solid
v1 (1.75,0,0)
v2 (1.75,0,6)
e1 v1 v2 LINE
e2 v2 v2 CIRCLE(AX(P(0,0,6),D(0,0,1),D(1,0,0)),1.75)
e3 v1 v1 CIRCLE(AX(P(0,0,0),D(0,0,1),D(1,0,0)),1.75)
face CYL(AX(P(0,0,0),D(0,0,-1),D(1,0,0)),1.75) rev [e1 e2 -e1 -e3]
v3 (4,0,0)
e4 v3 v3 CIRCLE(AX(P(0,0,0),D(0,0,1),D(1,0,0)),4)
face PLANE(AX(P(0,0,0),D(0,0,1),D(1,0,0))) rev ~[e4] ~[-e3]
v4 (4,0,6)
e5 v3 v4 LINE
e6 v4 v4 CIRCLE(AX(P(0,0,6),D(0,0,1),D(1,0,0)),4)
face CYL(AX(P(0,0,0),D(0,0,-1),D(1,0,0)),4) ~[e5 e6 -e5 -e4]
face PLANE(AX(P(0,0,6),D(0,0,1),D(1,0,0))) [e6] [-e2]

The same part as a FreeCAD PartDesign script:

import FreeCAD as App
import Part
import Sketcher

V = App.Vector

doc = App.newDocument("Part")
params = doc.addObject("Spreadsheet::Sheet", "Params")
for row, (alias, value) in enumerate([
    ("sketch1_diameter", "8 mm"),
    ("sketch1_diameter2", "3.5 mm"),
    ("pad1_length", "6 mm"),
], start=1):
    params.set(f"A{row}", alias)
    params.set(f"B{row}", "=" + value)
    params.setAlias(f"B{row}", alias)

body = doc.addObject("PartDesign::Body", "Body")

sketch1 = body.newObject("Sketcher::SketchObject", "Sketch")
sketch1.AttachmentSupport = (doc.getObject("XY_Plane"), [""])
sketch1.MapMode = "FlatFace"
sketch1.addGeometry([
    Part.Circle(V(0, 0, 0), V(0, 0, 1), 4),
    Part.Circle(V(0, 0, 0), V(0, 0, 1), 1.75),
], False)
sketch1.addConstraint([
    Sketcher.Constraint("Coincident", 0, 3, -1, 1),
    Sketcher.Constraint("Coincident", 1, 3, -1, 1),
    Sketcher.Constraint("Diameter", 0, 8.0),
    Sketcher.Constraint("Diameter", 1, 3.5),
])
sketch1.setExpression("Constraints[2]", "Params.sketch1_diameter")
sketch1.setExpression("Constraints[3]", "Params.sketch1_diameter2")
pad1 = body.newObject("PartDesign::Pad", "Pad")
pad1.Profile = sketch1
pad1.setExpression("Length", "Params.pad1_length")

doc.recompute()
